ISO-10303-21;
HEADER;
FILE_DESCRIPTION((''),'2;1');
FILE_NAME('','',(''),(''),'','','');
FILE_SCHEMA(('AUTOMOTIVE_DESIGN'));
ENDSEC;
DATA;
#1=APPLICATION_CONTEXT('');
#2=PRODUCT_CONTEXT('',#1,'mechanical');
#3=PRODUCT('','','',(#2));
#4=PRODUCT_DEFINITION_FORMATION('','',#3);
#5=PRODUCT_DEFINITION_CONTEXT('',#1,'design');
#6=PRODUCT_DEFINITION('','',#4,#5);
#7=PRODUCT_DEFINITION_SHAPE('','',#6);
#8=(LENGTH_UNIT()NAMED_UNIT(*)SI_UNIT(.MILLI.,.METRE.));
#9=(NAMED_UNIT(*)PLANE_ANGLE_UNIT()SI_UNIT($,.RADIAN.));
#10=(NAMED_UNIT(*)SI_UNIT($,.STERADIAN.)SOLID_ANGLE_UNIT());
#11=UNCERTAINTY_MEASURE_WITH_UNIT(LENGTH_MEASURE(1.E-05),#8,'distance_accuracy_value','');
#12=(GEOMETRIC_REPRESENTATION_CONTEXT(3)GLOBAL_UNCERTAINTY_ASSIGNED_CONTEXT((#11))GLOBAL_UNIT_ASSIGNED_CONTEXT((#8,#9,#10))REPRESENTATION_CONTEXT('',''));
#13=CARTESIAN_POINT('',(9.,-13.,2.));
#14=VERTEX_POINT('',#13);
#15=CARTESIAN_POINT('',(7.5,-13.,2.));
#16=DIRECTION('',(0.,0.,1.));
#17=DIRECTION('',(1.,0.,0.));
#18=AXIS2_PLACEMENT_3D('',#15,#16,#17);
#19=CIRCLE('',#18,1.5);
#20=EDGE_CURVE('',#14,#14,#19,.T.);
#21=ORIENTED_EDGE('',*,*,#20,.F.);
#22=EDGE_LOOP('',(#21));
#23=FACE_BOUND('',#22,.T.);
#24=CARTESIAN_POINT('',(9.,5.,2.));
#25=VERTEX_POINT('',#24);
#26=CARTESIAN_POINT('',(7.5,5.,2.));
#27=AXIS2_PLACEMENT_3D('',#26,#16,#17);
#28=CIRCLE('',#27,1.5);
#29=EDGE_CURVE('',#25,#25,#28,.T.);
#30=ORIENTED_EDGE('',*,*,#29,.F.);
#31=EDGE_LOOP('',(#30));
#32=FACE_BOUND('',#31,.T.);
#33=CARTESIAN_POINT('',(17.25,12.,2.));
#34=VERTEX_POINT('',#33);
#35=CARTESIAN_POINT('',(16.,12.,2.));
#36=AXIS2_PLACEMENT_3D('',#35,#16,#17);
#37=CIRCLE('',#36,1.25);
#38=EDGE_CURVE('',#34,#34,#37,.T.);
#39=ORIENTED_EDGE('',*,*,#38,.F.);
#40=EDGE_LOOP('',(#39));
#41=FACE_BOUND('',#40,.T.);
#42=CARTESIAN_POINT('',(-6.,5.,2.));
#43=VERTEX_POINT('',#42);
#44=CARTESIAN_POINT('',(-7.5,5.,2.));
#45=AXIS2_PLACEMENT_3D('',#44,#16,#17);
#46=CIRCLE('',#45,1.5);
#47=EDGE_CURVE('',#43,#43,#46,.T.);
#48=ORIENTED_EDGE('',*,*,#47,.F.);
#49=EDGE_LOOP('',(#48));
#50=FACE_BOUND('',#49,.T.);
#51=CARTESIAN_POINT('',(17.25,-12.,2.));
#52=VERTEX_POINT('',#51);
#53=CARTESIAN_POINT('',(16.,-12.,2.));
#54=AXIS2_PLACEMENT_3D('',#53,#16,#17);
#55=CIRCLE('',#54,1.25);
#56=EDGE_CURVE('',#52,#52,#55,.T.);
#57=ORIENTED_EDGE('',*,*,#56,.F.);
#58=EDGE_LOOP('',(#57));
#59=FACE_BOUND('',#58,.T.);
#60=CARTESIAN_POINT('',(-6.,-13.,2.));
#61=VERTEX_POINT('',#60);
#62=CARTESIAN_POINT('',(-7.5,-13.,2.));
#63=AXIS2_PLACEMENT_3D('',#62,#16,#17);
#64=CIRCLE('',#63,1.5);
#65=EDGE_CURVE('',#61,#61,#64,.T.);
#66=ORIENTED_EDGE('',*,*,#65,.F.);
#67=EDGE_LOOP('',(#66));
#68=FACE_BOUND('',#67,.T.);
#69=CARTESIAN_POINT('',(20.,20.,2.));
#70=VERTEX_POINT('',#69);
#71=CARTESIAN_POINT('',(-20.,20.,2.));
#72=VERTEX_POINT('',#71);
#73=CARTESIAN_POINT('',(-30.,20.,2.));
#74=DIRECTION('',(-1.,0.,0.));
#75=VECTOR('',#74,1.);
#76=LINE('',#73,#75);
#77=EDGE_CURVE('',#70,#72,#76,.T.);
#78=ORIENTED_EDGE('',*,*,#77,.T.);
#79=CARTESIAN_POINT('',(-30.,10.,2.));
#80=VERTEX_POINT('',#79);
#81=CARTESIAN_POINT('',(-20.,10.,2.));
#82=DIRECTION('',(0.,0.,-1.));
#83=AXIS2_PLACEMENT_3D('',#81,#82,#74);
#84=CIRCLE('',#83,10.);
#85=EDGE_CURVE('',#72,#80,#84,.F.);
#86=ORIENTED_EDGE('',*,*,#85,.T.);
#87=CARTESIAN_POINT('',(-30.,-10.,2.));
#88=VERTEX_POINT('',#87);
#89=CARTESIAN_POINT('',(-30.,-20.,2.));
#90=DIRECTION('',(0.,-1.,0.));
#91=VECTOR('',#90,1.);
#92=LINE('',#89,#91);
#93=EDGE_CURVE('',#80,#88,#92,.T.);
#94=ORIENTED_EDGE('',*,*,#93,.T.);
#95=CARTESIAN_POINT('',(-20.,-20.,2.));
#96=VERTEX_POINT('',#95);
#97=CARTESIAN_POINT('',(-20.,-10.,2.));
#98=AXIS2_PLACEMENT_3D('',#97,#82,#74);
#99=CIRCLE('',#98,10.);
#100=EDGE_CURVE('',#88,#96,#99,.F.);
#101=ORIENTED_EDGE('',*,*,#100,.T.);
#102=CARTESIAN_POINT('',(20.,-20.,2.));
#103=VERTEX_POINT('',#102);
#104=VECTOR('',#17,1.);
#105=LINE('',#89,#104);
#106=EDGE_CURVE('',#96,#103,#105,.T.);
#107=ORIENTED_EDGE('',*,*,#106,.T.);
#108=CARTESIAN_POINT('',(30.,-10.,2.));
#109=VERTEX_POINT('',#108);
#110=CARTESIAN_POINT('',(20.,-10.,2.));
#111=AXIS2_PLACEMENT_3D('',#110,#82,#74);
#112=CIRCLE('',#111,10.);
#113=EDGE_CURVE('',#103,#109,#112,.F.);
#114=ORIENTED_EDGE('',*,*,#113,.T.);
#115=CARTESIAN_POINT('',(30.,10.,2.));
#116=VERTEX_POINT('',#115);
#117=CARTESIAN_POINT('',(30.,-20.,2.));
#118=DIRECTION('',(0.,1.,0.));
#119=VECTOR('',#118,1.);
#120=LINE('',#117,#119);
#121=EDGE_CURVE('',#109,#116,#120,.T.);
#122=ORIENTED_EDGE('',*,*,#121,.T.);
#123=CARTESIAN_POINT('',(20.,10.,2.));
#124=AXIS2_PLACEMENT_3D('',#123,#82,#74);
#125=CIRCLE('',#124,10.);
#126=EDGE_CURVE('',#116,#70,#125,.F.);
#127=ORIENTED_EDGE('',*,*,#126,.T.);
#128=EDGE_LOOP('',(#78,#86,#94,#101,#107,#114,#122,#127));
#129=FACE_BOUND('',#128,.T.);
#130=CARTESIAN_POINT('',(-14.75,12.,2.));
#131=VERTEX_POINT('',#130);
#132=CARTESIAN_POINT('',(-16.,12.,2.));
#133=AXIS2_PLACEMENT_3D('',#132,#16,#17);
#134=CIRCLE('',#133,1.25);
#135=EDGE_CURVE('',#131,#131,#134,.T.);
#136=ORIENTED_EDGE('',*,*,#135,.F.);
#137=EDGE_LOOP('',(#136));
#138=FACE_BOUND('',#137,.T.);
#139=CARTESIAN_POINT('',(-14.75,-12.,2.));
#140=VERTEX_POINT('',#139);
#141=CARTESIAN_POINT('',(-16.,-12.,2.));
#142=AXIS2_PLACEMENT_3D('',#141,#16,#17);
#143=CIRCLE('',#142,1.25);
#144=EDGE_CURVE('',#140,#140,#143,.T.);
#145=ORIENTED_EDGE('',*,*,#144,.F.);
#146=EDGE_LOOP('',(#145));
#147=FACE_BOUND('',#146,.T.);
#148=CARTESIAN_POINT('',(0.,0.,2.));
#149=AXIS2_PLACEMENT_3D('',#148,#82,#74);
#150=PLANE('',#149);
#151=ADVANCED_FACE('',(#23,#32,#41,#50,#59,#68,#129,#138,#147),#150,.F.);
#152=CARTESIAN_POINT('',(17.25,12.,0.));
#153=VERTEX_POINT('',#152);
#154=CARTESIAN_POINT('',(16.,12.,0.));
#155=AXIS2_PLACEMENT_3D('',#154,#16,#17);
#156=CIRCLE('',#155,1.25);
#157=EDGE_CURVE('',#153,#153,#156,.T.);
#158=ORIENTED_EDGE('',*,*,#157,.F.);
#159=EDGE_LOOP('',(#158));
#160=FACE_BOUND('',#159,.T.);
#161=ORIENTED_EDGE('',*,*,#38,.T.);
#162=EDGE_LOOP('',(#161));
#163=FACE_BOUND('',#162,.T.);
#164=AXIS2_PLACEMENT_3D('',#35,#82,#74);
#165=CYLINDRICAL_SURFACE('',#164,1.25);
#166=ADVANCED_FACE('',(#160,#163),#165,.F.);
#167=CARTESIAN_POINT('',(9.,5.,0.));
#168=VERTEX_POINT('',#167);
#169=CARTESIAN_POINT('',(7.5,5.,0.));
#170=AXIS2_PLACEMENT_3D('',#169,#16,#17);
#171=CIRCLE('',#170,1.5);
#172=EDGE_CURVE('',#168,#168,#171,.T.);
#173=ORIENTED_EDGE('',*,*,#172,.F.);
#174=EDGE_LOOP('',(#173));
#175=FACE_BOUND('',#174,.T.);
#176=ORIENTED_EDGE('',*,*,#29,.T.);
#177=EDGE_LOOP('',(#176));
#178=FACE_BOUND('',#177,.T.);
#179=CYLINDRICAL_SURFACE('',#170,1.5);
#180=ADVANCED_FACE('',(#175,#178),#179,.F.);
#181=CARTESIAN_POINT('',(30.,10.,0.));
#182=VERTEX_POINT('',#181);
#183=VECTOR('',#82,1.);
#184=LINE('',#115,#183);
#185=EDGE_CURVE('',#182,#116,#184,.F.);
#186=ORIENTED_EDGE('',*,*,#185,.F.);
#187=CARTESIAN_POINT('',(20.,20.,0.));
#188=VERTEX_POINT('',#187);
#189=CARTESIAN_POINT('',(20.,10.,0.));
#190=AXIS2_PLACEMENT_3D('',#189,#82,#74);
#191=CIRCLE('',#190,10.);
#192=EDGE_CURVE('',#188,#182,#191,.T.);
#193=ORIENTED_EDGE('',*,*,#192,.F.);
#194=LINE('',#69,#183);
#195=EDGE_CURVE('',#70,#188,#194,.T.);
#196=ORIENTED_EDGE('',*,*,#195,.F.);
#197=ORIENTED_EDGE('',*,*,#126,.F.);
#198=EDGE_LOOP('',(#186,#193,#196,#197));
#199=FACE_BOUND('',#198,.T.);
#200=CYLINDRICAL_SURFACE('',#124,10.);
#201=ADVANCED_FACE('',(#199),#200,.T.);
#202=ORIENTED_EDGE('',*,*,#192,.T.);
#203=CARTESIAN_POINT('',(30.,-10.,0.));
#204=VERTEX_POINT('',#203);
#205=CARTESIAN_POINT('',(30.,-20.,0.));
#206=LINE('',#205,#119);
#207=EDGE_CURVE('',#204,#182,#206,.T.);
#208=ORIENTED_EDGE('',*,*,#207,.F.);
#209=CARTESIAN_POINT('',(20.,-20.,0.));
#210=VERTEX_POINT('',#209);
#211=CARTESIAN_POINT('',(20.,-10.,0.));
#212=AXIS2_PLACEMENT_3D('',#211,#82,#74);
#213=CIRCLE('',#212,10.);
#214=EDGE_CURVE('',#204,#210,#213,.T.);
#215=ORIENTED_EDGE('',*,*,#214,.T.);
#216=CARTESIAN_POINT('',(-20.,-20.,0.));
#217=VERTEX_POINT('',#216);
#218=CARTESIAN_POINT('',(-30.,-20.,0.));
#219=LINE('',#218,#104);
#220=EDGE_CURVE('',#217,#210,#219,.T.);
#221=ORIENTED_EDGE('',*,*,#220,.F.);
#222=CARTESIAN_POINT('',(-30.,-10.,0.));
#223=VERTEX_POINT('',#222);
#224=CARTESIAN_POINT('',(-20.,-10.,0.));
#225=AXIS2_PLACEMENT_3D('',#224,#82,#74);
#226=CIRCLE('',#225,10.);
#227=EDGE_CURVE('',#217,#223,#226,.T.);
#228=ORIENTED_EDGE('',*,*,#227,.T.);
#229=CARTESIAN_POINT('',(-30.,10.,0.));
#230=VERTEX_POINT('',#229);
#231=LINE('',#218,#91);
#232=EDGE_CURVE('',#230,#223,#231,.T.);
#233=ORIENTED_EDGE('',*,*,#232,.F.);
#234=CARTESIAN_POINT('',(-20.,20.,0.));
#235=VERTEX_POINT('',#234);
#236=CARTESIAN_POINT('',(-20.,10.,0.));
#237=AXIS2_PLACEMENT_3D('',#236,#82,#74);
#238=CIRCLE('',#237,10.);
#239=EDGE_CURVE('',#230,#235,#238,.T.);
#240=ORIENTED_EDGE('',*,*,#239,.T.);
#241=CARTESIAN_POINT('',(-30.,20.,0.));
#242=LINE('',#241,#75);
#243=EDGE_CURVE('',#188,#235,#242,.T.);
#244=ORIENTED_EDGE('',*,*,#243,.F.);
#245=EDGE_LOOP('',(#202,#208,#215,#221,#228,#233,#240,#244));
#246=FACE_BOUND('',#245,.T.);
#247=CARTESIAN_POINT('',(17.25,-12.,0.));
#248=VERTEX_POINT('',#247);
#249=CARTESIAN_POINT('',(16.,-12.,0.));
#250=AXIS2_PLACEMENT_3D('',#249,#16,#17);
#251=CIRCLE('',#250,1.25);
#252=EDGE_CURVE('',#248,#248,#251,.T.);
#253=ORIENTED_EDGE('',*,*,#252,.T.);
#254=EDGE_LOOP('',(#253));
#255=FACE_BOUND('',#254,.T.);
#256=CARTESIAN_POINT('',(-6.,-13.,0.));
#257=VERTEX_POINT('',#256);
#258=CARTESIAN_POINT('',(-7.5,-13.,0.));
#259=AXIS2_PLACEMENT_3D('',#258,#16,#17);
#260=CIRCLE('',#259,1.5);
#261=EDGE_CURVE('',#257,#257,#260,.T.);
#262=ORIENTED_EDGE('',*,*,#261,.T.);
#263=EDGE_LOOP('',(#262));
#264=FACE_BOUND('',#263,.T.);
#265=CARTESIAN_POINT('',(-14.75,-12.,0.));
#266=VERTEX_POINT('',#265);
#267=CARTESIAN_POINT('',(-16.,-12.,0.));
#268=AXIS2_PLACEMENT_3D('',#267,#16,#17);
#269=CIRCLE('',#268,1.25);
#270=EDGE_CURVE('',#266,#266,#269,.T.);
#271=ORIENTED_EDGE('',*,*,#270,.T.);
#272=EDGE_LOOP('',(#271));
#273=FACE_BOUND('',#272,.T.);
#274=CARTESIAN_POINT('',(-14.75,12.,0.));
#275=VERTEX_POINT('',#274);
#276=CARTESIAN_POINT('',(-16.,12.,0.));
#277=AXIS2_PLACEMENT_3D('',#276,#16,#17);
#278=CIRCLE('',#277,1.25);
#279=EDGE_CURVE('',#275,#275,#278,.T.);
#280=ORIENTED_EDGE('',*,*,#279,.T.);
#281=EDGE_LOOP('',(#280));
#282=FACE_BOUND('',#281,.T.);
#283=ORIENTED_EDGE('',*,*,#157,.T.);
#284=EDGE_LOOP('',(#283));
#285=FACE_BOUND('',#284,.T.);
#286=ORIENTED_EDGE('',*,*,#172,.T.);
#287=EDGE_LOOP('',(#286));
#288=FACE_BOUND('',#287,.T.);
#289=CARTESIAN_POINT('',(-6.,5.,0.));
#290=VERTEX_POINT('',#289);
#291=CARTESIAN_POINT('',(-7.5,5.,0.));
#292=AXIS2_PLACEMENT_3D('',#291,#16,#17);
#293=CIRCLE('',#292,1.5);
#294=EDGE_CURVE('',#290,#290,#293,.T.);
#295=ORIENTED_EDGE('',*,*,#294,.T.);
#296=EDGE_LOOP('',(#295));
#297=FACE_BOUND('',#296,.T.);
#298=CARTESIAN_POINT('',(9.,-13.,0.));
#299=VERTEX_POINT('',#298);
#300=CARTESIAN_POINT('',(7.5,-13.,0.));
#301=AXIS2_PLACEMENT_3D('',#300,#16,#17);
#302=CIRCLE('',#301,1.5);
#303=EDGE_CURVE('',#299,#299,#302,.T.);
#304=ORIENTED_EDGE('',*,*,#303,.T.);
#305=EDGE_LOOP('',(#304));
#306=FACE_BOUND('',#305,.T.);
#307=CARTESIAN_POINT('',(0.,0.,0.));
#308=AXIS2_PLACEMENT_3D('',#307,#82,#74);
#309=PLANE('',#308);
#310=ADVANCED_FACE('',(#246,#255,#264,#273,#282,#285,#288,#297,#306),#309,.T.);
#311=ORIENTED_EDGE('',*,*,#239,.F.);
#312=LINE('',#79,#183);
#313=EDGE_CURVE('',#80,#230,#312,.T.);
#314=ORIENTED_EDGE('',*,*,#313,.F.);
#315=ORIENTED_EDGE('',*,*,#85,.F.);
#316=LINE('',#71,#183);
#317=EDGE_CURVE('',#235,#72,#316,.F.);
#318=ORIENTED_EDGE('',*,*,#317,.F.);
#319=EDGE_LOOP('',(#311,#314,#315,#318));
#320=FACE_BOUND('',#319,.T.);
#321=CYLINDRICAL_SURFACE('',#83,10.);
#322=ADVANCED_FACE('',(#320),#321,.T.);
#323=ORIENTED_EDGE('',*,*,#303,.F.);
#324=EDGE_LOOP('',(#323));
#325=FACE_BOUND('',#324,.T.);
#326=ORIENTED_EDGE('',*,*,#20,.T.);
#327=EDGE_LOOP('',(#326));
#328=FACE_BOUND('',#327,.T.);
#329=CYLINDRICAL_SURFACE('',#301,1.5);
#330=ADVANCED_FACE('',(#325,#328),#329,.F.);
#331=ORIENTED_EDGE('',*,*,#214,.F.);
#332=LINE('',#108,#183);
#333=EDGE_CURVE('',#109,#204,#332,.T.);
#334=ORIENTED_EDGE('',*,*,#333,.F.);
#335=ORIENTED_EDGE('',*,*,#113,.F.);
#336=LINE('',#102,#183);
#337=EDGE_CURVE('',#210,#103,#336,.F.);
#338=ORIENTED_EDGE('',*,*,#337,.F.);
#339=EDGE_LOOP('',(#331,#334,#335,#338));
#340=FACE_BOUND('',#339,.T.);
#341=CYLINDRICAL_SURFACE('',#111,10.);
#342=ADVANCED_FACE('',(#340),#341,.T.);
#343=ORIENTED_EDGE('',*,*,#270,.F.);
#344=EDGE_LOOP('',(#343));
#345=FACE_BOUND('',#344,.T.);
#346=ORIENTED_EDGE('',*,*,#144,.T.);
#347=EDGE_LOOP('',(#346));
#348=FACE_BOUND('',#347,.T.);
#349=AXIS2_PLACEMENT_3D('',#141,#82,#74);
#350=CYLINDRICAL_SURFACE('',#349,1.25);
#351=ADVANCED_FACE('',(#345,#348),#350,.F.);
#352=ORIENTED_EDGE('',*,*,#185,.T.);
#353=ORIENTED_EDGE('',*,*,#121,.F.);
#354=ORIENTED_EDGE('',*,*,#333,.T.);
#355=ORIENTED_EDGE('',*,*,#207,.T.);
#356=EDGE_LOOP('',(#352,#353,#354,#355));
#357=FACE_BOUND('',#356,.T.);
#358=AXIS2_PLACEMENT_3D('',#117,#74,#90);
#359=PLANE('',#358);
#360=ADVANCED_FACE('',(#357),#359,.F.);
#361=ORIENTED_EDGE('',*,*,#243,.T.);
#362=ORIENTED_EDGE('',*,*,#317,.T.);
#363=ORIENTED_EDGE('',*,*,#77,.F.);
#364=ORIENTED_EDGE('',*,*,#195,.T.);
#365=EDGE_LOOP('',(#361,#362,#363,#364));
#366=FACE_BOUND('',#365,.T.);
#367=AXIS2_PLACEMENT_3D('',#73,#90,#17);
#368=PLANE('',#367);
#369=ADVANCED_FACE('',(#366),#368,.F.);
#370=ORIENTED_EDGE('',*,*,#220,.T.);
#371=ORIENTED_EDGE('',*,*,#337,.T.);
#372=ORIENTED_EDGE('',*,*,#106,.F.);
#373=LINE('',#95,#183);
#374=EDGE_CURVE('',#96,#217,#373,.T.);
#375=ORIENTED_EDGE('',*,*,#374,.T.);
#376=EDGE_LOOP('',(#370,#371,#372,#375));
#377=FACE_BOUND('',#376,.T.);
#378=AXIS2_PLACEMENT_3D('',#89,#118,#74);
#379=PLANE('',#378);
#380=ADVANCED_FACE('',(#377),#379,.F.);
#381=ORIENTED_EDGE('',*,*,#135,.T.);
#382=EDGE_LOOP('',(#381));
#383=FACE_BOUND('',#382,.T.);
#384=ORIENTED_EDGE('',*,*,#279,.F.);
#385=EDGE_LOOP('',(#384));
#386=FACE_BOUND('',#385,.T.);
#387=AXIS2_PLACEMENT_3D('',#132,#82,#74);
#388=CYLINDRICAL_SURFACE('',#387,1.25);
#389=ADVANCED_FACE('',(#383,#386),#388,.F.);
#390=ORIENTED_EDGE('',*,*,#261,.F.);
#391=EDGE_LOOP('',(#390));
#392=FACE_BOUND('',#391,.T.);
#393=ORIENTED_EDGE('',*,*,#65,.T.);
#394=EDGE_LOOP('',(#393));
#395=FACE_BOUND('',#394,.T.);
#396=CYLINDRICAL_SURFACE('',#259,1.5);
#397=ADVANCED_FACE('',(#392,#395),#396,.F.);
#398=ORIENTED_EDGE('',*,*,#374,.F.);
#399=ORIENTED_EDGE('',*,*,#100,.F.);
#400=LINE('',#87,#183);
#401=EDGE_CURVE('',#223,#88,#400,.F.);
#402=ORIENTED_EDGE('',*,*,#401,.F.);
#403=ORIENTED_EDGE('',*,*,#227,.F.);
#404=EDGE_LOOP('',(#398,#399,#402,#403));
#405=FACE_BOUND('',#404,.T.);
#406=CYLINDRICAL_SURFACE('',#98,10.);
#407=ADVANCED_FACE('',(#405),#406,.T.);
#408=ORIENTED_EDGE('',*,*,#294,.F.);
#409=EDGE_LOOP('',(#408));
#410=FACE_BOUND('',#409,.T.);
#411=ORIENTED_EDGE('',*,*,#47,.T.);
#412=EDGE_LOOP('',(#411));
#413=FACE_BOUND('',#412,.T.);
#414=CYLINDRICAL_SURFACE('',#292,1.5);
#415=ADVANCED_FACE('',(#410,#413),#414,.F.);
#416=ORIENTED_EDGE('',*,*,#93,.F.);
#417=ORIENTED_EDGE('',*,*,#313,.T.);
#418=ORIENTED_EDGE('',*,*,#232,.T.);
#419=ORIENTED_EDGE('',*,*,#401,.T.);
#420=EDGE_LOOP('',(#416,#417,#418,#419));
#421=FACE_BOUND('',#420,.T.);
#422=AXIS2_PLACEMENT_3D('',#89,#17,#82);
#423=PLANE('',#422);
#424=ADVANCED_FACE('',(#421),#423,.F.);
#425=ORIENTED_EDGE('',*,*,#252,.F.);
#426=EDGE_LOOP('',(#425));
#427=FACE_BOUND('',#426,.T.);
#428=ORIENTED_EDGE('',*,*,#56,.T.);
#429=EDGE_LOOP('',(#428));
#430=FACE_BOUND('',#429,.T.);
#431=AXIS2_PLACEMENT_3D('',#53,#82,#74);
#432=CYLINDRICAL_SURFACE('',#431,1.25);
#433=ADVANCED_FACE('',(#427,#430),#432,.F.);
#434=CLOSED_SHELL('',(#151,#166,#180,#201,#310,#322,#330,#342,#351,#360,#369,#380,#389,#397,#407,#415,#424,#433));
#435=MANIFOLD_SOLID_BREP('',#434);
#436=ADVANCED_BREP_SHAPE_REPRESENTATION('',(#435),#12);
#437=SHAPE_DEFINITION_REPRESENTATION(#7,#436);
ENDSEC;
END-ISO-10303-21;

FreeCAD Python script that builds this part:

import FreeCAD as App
import Part
import Sketcher
from FreeCAD import Vector
Q = App.Units.Quantity


def edges_at(feature, points):
    """Names of the edges that pass closest to the given points."""
    edges = feature.Shape.Edges
    near = lambda p: min(range(len(edges)), key=lambda i: edges[i].distToShape(Part.Vertex(*p))[0])
    return sorted({f"Edge{near(p) + 1}" for p in points})


def add_polygon(sketch, points):
    """Adds a closed chain of lines whose ends are joined by coincident constraints."""
    first, n = sketch.GeometryCount, len(points)
    for a, b in zip(points, points[1:] + points[:1]):
        sketch.addGeometry(Part.LineSegment(App.Vector(*a, 0), App.Vector(*b, 0)), False)
    for i in range(n):
        sketch.addConstraint(Sketcher.Constraint("Coincident", first + i, 2, first + (i + 1) % n, 1))

doc = App.newDocument("Part")
params = doc.addObject("Spreadsheet::Sheet", "Params")
for row, (alias, value) in enumerate([
    ("sketch1_diameter", "2.5 mm"),
    ("sketch1_width", "60 mm"),
    ("sketch1_height", "40 mm"),
    ("pad1_length", "2 mm"),
    ("fillet_radius", "10 mm"),
    ("sketch2_diameter", "3 mm"),
    ("pocket1_length", "2 mm"),
], start=1):
    params.set(f"A{row}", alias)
    params.set(f"B{row}", "=" + value)
    params.setAlias(f"B{row}", alias)

body = doc.addObject("PartDesign::Body", "Body")

# Sketch on XY plane
sketch1 = doc.addObject("Sketcher::SketchObject", "Sketch")
body.addObject(sketch1)
sketch1.AttachmentSupport = (doc.XY_Plane, [""])
sketch1.MapMode = "FlatFace"
add_polygon(sketch1, [(-30, 20), (-30, -20), (30, -20), (30, 20)])  # lines 0-3
sketch1.addGeometry(Part.Circle(Vector(-16, -12, 0), Vector(0, 0, 1), 1.25), False)  # 4
sketch1.addGeometry(Part.Circle(Vector(16, -12, 0), Vector(0, 0, 1), 1.25), False)  # 5
sketch1.addGeometry(Part.Circle(Vector(-16, 12, 0), Vector(0, 0, 1), 1.25), False)  # 6
sketch1.addGeometry(Part.Circle(Vector(16, 12, 0), Vector(0, 0, 1), 1.25), False)  # 7
sketch1.addConstraint(Sketcher.Constraint("Vertical", 0))
sketch1.addConstraint(Sketcher.Constraint("Horizontal", 1))
sketch1.addConstraint(Sketcher.Constraint("Vertical", 2))
sketch1.addConstraint(Sketcher.Constraint("Horizontal", 3))
sketch1.addConstraint(Sketcher.Constraint("Equal", 4, 5))
sketch1.addConstraint(Sketcher.Constraint("Equal", 5, 6))
sketch1.addConstraint(Sketcher.Constraint("Equal", 6, 7))
sketch1.addConstraint(Sketcher.Constraint("Symmetric", 5, 3, 6, 3, -1, 1))
sketch1.addConstraint(Sketcher.Constraint("Symmetric", 4, 3, 7, 3, -1, 1))
sketch1.addConstraint(Sketcher.Constraint("Symmetric", 0, 2, 2, 2, -1, 1))
sketch1.addConstraint(Sketcher.Constraint("Symmetric", 4, 3, 5, 3, -2))
sketch1.addConstraint(Sketcher.Constraint("Diameter", 4, Q("2.5 mm")))
sketch1.addConstraint(Sketcher.Constraint("DistanceX", 1, 1, 1, 2, Q("60 mm")))
sketch1.addConstraint(Sketcher.Constraint("DistanceY", 0, 2, 0, 1, Q("40 mm")))
sketch1.addConstraint(Sketcher.Constraint("DistanceX", 4, 3, -1, 1, Q("16 mm")))
sketch1.addConstraint(Sketcher.Constraint("DistanceY", 4, 3, -1, 1, Q("12 mm")))
sketch1.setExpression("Constraints[15]", "Params.sketch1_diameter")
sketch1.setExpression("Constraints[16]", "Params.sketch1_width")
sketch1.setExpression("Constraints[17]", "Params.sketch1_height")
pad1 = doc.addObject("PartDesign::Pad", "Pad")
body.addObject(pad1)
pad1.Profile = sketch1
pad1.setExpression("Length", "Params.pad1_length")
doc.recompute()

fillet = doc.addObject("PartDesign::Fillet", "Fillet")
body.addObject(fillet)
fillet.Base = (pad1, edges_at(pad1, [
    (30, -20, 1),
    (-30, -20, 1),
    (-30, 20, 1),
    (30, 20, 1),
]))
fillet.setExpression("Radius", "Params.fillet_radius")

# Sketch on XY plane
sketch2 = doc.addObject("Sketcher::SketchObject", "Sketch001")
body.addObject(sketch2)
sketch2.AttachmentSupport = (doc.XY_Plane, [""])
sketch2.MapMode = "FlatFace"
sketch2.AttachmentOffset = App.Placement(Vector(0, 0, 2), App.Rotation())
sketch2.addGeometry(Part.Circle(Vector(-7.5, 5, 0), Vector(0, 0, 1), 1.5), False)
sketch2.addGeometry(Part.Circle(Vector(7.5, 5, 0), Vector(0, 0, 1), 1.5), False)
sketch2.addGeometry(Part.Circle(Vector(7.5, -13, 0), Vector(0, 0, 1), 1.5), False)
sketch2.addGeometry(Part.Circle(Vector(-7.5, -13, 0), Vector(0, 0, 1), 1.5), False)
sketch2.addConstraint(Sketcher.Constraint("Equal", 0, 1))
sketch2.addConstraint(Sketcher.Constraint("Equal", 1, 2))
sketch2.addConstraint(Sketcher.Constraint("Equal", 2, 3))
sketch2.addConstraint(Sketcher.Constraint("Symmetric", 0, 3, 1, 3, -2))
sketch2.addConstraint(Sketcher.Constraint("Symmetric", 2, 3, 3, 3, -2))
sketch2.addConstraint(Sketcher.Constraint("Vertical", 1, 3, 2, 3))
sketch2.addConstraint(Sketcher.Constraint("Diameter", 0, Q("3 mm")))
sketch2.addConstraint(Sketcher.Constraint("DistanceY", -1, 1, 0, 3, Q("5 mm")))
sketch2.addConstraint(Sketcher.Constraint("DistanceY", 2, 3, -1, 1, Q("13 mm")))
sketch2.addConstraint(Sketcher.Constraint("DistanceX", 0, 3, 1, 3, Q("15 mm")))
sketch2.setExpression("Constraints[6]", "Params.sketch2_diameter")
pocket1 = doc.addObject("PartDesign::Pocket", "Pocket")
body.addObject(pocket1)
pocket1.Profile = sketch2
pocket1.setExpression("Length", "Params.pocket1_length")

doc.recompute()
